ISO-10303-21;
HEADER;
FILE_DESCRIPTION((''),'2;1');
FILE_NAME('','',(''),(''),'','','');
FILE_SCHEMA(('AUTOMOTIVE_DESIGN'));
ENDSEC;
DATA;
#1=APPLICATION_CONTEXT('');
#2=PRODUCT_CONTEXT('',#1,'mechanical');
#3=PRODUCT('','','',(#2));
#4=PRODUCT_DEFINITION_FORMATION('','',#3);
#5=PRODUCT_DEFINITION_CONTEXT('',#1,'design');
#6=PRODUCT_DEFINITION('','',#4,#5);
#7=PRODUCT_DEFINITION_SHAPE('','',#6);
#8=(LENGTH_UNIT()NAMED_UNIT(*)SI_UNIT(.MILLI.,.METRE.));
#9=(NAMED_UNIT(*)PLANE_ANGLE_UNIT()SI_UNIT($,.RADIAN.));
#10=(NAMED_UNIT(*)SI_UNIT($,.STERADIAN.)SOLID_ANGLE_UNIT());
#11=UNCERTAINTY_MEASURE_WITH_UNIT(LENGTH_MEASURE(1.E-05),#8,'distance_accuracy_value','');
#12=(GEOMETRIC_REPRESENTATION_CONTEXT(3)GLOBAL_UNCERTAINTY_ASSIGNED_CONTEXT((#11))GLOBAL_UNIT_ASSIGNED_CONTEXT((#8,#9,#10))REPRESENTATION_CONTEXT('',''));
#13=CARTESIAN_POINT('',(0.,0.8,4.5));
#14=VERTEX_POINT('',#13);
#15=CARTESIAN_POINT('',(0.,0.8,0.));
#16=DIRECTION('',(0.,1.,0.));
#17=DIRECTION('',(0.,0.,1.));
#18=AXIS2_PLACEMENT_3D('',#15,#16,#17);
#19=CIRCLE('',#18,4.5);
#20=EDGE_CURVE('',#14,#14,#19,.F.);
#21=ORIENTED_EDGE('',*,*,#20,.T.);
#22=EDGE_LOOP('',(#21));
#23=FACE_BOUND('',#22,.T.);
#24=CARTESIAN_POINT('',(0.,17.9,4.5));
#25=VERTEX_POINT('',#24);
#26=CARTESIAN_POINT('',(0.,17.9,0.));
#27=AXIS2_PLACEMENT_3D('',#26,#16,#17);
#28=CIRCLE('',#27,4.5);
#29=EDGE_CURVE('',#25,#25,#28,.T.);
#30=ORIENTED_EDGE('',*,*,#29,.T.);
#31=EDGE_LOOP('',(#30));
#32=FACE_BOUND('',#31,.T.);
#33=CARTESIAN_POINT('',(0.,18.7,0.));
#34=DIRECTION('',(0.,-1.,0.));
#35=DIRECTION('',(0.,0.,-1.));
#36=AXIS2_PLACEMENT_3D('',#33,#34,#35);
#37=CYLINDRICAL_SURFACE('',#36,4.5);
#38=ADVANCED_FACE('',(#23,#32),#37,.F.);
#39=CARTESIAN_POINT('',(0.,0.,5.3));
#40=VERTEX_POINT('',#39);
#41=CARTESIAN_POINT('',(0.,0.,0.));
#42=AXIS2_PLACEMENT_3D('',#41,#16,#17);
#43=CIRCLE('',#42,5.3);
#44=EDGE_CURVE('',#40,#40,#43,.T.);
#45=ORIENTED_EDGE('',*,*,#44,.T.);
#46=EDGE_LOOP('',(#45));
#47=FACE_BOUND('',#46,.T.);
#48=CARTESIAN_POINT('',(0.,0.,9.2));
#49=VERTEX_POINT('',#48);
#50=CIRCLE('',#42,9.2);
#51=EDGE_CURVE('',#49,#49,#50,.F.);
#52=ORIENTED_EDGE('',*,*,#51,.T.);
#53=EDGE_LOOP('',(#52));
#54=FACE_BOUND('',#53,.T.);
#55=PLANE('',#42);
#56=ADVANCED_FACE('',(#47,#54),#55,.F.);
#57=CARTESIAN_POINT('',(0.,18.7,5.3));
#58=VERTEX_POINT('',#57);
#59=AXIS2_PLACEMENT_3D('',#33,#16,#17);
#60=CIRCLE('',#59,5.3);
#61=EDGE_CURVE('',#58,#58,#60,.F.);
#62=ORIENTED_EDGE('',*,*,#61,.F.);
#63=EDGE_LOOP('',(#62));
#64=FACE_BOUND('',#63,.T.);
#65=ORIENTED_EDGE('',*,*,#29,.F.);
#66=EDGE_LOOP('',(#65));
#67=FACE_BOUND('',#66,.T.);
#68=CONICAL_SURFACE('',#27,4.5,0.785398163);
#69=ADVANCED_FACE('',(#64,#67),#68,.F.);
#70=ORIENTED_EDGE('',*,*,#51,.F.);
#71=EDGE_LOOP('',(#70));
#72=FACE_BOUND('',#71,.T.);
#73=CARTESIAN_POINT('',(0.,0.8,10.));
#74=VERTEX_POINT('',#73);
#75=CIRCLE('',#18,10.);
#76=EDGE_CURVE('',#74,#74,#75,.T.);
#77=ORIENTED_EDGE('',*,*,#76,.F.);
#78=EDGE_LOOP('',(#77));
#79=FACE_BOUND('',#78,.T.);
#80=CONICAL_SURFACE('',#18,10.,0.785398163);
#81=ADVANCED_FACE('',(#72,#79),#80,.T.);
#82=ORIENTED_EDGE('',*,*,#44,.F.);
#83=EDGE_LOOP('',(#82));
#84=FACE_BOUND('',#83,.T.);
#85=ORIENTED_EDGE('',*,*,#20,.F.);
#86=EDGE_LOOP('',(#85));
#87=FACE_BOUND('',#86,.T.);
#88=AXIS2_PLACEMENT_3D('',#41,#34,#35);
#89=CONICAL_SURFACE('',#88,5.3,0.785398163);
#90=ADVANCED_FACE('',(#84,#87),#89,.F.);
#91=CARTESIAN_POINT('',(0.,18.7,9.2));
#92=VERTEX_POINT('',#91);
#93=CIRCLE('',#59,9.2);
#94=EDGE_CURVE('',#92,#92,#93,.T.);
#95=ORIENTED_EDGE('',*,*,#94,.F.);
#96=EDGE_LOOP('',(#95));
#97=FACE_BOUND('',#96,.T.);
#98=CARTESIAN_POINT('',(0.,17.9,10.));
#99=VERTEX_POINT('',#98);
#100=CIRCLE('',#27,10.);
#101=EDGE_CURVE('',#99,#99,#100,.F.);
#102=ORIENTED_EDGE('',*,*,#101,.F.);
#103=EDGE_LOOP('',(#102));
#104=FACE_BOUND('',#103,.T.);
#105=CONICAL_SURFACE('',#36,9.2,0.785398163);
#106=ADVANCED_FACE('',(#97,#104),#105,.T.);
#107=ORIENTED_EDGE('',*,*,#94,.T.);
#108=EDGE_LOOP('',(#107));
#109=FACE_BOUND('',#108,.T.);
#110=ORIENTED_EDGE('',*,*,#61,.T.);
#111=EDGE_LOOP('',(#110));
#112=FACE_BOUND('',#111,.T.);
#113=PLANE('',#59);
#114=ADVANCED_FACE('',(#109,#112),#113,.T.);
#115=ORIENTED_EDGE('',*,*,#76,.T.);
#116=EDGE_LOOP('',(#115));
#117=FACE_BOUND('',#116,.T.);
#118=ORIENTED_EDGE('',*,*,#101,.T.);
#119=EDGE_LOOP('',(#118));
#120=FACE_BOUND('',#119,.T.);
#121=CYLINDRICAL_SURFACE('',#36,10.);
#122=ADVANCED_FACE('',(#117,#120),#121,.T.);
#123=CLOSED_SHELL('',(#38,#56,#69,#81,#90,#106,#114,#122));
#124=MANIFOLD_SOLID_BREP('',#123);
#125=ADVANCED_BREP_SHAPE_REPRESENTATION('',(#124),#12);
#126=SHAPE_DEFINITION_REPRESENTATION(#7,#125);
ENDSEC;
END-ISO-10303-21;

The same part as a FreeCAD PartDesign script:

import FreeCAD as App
import Part
import Sketcher

V = App.Vector
Q = App.Units.Quantity


def edges_at(feature, points):
    """Names of the edges that pass closest to the given points."""
    edges = feature.Shape.Edges
    near = lambda p: min(range(len(edges)), key=lambda i: edges[i].distToShape(Part.Vertex(*p))[0])
    return sorted({f"Edge{near(p) + 1}" for p in points})

doc = App.newDocument("Part")
params = doc.addObject("Spreadsheet::Sheet", "Params")
for row, (alias, value) in enumerate([
    ("sketch1_diameter", "20 mm"),
    ("sketch1_diameter2", "9 mm"),
    ("pad1_length", "18.7 mm"),
    ("chamfer_size", "0.8 mm"),
], start=1):
    params.set(f"A{row}", alias)
    params.set(f"B{row}", "=" + value)
    params.setAlias(f"B{row}", alias)

body = doc.addObject("PartDesign::Body", "Body")

# Sketch on XZ plane
sketch1 = doc.addObject("Sketcher::SketchObject", "Sketch")
body.addObject(sketch1)
sketch1.AttachmentSupport = (doc.XZ_Plane, [""])
sketch1.MapMode = "FlatFace"
sketch1.addGeometry([
    Part.Circle(V(0, 0, 0), V(0, 0, 1), 10),
    Part.Circle(V(0, 0, 0), V(0, 0, 1), 4.5),
], False)
sketch1.addConstraint([
    Sketcher.Constraint("Coincident", 0, 3, -1, 1),
    Sketcher.Constraint("Coincident", 1, 3, -1, 1),
    Sketcher.Constraint("Diameter", 0, Q("20 mm")),
    Sketcher.Constraint("Diameter", 1, Q("9 mm")),
])
sketch1.setExpression("Constraints[2]", "Params.sketch1_diameter")
sketch1.setExpression("Constraints[3]", "Params.sketch1_diameter2")
pad1 = doc.addObject("PartDesign::Pad", "Pad")
body.addObject(pad1)
pad1.Profile = sketch1
pad1.setExpression("Length", "Params.pad1_length")
pad1.Reversed = True
doc.recompute()

chamfer = doc.addObject("PartDesign::Chamfer", "Chamfer")
body.addObject(chamfer)
chamfer.Base = (pad1, edges_at(pad1, [
    (-10, 0, 0),
    (-10, 18.7, 0),
    (-4.5, 0, 0),
    (-4.5, 18.7, 0),
]))
chamfer.setExpression("Size", "Params.chamfer_size")

doc.recompute()
